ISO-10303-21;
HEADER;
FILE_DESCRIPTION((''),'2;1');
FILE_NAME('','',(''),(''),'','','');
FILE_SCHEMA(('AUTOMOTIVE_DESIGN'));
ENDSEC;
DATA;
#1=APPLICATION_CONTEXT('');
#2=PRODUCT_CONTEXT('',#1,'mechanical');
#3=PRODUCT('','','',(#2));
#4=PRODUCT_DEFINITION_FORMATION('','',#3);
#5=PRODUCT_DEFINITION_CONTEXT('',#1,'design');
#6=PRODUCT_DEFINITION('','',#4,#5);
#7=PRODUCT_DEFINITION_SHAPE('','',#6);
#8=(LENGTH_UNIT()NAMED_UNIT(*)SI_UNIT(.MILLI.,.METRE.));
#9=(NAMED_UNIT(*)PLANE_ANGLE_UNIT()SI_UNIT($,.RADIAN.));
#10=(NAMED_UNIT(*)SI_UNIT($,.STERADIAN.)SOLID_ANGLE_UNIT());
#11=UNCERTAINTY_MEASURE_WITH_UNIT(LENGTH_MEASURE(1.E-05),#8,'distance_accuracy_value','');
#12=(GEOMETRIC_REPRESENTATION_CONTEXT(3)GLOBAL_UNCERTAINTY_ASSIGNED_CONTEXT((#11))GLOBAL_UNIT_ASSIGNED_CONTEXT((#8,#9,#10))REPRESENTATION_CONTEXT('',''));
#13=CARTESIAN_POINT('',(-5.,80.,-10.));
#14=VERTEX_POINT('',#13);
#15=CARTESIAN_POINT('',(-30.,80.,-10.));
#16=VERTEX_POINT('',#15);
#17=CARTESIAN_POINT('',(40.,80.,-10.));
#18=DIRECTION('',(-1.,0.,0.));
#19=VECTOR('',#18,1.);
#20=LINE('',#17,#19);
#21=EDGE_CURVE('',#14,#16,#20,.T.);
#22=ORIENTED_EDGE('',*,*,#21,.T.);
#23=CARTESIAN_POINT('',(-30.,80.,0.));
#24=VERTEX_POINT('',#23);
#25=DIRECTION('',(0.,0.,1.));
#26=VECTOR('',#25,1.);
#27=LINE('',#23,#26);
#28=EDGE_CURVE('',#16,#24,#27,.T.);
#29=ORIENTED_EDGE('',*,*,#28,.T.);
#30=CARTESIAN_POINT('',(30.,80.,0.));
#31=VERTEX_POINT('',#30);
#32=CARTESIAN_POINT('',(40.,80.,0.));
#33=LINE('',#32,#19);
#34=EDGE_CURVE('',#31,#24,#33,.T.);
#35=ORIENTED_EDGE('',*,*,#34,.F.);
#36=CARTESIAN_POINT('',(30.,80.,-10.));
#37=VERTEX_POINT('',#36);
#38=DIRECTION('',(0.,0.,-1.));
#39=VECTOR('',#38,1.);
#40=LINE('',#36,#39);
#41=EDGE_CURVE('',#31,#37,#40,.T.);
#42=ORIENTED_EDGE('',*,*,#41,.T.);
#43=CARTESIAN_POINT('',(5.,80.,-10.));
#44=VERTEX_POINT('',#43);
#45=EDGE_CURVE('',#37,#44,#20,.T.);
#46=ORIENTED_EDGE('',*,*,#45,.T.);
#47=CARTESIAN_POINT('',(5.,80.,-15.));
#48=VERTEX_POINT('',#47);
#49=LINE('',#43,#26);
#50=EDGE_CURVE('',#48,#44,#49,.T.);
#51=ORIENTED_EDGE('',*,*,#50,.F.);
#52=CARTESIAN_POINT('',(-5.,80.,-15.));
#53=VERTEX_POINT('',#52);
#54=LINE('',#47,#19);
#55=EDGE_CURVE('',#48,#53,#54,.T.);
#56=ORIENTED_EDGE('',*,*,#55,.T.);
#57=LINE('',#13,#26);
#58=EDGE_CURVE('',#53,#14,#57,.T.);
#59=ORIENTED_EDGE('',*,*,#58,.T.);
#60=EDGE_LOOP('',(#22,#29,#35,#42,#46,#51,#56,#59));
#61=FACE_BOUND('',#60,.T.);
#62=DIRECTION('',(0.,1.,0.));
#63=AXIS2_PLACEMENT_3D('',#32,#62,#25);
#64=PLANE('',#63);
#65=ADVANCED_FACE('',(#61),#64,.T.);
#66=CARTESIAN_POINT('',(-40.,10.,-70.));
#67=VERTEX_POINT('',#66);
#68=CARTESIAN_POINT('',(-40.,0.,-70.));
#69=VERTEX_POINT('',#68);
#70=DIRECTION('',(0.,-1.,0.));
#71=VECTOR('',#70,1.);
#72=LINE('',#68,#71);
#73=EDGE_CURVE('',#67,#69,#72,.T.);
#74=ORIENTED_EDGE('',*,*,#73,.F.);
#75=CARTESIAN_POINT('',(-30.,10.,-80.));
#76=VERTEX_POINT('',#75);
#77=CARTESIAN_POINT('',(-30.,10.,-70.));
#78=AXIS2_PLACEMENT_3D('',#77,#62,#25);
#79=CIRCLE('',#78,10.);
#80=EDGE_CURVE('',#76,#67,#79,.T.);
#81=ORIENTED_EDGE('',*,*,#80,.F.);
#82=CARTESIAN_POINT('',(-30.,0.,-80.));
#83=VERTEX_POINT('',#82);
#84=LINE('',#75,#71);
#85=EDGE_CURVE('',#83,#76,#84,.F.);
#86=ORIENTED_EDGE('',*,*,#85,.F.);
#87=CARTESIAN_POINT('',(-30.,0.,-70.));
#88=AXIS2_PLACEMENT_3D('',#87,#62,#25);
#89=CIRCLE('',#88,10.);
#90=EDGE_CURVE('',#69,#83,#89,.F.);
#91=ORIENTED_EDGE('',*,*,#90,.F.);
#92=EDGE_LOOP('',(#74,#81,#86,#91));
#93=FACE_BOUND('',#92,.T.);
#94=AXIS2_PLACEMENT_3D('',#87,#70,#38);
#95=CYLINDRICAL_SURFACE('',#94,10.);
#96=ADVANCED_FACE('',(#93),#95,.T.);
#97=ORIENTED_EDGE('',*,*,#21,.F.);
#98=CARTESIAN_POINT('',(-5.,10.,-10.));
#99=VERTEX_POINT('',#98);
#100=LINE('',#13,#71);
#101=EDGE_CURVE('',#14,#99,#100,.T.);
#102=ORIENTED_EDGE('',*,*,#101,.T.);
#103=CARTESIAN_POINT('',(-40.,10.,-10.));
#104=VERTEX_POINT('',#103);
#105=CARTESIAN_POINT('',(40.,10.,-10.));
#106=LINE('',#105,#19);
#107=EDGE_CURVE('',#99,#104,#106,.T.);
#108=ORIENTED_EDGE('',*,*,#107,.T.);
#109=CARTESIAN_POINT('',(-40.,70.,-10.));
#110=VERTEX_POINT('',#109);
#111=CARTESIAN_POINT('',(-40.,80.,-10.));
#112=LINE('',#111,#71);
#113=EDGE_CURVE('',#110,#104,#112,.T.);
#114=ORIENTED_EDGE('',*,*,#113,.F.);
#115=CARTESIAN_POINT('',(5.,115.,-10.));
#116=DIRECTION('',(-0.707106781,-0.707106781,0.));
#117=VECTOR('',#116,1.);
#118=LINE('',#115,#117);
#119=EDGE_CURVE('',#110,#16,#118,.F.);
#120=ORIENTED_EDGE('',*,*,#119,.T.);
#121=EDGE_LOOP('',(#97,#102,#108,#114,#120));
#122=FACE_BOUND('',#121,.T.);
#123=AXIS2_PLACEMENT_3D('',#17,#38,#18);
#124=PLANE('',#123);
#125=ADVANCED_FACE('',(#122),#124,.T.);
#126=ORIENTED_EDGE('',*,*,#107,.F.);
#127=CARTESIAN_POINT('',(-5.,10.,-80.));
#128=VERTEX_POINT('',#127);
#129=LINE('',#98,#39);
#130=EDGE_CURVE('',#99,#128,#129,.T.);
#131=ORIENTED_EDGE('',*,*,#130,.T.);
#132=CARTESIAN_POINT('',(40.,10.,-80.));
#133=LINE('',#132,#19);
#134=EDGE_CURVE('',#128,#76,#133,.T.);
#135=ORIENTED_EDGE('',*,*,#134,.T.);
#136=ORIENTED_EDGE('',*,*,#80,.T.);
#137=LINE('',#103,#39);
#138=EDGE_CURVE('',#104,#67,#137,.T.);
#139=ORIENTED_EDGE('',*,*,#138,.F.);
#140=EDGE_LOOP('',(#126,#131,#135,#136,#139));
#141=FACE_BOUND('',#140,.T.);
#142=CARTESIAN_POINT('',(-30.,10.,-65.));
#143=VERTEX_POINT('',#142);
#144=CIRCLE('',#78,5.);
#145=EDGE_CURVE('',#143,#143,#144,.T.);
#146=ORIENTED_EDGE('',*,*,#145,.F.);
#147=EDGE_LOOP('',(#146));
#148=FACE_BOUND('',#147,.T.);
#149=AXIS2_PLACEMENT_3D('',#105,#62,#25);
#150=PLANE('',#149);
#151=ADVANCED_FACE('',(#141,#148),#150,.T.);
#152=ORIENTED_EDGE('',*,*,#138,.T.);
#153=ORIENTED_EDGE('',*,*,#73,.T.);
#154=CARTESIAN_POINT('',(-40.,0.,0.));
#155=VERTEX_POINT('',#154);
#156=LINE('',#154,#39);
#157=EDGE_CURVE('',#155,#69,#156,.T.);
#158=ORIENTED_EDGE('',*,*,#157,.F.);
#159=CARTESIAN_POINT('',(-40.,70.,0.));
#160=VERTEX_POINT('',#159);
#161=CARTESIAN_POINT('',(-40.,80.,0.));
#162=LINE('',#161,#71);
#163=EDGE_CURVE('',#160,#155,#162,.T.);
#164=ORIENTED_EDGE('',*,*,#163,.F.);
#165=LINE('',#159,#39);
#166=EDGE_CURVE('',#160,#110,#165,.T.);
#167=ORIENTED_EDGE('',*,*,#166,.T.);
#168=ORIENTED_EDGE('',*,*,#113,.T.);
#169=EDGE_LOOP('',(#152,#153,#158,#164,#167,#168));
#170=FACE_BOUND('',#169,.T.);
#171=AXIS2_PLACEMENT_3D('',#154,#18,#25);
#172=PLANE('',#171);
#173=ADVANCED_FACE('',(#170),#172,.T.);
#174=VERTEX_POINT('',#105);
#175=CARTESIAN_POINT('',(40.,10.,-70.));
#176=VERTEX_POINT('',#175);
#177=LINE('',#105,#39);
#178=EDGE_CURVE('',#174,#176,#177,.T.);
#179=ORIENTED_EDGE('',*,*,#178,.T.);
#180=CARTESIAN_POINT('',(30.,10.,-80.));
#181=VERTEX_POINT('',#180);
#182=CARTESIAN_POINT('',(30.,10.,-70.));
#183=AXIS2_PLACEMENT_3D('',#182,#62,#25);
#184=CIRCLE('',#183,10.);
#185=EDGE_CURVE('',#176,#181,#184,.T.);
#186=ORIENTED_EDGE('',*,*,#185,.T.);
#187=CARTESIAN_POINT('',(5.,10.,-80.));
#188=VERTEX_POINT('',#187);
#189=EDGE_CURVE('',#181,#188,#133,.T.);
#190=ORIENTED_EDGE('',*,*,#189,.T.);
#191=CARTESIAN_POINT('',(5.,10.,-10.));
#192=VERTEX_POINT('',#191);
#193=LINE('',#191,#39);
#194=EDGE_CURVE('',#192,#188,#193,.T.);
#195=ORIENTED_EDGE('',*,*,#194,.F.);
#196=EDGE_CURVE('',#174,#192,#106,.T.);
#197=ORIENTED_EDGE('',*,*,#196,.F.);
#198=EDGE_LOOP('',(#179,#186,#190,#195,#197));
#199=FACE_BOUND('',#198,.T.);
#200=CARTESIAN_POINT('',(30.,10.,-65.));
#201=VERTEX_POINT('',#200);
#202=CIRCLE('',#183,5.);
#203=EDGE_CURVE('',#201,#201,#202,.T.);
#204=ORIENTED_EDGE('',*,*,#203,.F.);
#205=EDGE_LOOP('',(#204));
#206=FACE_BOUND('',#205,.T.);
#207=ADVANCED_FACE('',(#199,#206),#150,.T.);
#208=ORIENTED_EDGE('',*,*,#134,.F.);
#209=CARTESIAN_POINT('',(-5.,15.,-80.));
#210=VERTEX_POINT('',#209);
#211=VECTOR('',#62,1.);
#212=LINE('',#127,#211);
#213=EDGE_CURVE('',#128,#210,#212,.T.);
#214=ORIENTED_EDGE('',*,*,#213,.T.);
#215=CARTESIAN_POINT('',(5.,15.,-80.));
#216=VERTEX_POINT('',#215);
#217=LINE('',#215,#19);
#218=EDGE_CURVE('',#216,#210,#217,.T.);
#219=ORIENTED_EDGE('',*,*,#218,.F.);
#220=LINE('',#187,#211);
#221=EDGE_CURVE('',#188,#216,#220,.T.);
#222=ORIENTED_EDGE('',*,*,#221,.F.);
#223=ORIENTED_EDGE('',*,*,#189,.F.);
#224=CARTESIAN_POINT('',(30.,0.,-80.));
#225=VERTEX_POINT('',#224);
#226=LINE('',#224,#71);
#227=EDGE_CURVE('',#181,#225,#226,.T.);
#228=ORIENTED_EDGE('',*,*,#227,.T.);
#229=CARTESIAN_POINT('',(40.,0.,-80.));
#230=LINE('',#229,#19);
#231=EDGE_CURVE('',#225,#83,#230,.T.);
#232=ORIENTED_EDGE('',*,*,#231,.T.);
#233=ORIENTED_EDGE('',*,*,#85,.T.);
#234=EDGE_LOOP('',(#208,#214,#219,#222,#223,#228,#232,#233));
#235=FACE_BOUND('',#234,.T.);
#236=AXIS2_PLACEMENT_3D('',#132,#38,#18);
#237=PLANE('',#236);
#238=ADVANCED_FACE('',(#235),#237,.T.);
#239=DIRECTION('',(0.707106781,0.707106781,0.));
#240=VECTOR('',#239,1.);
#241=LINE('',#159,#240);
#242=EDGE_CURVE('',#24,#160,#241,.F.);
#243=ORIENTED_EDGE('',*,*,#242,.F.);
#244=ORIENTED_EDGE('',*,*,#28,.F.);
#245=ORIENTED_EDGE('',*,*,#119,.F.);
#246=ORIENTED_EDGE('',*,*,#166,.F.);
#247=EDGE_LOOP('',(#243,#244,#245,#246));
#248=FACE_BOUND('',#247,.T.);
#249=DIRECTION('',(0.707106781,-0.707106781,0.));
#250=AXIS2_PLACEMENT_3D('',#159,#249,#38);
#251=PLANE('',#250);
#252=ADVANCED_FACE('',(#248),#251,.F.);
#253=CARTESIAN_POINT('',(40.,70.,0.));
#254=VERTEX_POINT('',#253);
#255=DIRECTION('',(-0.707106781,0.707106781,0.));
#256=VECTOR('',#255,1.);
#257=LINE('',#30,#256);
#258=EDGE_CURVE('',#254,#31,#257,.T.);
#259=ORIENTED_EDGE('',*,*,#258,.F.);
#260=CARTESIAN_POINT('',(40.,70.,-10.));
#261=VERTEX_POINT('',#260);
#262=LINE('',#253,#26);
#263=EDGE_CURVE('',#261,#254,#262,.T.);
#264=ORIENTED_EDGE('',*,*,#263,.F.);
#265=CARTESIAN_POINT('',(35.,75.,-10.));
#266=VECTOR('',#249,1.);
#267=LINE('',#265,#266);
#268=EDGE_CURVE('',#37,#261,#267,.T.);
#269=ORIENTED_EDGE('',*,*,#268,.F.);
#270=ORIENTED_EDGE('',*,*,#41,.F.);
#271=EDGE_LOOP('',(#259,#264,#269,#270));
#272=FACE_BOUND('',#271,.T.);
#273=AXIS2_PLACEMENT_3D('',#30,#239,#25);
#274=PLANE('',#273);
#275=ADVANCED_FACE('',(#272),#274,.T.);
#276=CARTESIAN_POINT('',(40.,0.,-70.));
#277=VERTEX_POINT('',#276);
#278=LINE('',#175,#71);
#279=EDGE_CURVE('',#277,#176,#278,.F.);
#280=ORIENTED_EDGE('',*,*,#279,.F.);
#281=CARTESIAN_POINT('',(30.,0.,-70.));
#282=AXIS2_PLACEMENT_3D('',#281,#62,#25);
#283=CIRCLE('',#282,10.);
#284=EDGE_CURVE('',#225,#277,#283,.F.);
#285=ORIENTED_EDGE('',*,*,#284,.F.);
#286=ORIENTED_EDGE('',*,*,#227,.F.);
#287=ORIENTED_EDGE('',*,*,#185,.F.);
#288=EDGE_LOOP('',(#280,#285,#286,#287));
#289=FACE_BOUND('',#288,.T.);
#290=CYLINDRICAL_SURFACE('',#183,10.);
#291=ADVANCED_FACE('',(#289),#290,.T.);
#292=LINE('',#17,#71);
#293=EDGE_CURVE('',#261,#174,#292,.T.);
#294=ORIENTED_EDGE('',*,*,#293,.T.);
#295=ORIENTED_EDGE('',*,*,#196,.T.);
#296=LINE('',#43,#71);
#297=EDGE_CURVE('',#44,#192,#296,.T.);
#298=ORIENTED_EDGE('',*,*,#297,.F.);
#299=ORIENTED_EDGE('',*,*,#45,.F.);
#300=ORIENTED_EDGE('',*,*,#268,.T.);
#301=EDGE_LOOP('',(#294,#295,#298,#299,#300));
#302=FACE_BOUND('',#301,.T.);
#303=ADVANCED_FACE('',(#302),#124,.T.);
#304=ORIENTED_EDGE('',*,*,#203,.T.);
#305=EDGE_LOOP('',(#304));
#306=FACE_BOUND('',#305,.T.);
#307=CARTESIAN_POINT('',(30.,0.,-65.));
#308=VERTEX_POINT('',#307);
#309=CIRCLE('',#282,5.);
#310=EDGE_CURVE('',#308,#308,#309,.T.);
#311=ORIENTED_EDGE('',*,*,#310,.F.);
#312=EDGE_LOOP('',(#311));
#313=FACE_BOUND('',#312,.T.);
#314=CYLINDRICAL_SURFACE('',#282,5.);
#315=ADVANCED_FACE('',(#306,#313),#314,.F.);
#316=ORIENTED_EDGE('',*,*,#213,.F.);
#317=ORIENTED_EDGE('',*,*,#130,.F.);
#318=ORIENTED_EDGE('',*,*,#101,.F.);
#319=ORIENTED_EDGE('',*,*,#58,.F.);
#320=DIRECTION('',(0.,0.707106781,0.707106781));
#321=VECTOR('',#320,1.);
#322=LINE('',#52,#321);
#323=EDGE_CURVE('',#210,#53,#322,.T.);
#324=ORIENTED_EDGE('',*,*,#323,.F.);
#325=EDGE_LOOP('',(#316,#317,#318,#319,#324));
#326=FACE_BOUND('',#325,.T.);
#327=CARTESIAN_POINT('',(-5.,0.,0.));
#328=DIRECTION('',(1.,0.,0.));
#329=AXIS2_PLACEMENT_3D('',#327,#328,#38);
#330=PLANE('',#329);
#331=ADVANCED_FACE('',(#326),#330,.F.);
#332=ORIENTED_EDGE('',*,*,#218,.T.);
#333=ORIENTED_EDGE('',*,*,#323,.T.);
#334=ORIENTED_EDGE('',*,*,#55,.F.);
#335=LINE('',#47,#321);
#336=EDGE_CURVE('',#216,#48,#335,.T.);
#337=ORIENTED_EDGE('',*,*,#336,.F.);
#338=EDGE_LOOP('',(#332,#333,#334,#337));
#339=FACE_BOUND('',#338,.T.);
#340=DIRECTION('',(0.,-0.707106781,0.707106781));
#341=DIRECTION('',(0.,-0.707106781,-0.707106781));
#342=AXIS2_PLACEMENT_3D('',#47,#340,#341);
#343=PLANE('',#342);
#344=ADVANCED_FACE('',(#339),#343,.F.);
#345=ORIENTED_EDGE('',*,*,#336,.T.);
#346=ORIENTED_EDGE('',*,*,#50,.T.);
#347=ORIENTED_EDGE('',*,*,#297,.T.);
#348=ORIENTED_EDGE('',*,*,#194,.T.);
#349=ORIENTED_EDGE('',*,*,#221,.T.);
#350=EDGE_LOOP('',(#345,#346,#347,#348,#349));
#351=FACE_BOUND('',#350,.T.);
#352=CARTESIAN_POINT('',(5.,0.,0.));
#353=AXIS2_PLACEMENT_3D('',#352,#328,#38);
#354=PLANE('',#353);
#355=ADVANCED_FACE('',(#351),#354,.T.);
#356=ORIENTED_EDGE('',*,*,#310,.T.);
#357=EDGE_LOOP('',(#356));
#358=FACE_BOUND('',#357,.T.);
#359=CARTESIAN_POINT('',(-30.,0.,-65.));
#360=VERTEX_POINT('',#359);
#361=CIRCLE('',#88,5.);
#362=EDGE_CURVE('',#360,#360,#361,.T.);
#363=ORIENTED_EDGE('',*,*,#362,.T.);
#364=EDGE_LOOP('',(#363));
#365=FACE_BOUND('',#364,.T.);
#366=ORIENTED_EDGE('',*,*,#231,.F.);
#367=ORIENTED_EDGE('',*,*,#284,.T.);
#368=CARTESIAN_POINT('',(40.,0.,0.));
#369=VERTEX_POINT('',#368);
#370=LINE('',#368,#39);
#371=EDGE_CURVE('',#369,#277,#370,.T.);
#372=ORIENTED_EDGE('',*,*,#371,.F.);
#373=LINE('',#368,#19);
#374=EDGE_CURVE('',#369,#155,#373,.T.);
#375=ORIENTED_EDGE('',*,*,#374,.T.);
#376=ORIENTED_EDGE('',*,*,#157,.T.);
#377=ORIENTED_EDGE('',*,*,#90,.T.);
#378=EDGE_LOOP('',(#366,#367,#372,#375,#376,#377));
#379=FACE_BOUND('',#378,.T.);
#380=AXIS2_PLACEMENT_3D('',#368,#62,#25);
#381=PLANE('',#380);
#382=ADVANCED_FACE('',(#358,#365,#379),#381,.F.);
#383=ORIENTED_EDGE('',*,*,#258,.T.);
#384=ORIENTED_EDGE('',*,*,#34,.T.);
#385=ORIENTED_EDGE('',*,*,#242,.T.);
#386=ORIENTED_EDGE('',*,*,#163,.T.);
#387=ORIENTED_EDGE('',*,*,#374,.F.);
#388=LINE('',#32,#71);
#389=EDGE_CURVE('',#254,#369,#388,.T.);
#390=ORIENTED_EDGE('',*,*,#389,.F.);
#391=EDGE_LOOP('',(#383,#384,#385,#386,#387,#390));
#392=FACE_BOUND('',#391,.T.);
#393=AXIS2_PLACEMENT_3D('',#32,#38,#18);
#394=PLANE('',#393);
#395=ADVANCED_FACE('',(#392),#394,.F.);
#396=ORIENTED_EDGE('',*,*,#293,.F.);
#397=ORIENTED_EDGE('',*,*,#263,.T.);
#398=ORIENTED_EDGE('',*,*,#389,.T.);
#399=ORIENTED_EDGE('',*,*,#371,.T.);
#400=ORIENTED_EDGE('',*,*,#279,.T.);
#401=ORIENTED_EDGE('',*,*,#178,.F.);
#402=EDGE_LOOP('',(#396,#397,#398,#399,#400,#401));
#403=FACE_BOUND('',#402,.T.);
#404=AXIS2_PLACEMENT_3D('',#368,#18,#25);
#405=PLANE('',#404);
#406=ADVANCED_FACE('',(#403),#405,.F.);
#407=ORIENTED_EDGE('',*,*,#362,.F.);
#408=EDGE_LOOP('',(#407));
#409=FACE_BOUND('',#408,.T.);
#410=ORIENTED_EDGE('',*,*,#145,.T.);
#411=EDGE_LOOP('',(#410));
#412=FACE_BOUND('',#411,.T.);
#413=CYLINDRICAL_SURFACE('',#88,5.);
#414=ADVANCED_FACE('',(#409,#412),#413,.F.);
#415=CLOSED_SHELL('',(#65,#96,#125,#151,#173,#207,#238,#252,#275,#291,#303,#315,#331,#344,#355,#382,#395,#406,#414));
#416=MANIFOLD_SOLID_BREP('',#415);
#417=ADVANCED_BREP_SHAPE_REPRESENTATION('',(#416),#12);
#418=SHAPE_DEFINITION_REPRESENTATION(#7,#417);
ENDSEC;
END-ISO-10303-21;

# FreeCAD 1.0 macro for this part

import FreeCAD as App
import Part
import Sketcher

V = App.Vector
Q = App.Units.Quantity


def edges_at(feature, points):
    """Names of the edges that pass closest to the given points."""
    edges = feature.Shape.Edges
    near = lambda p: min(range(len(edges)), key=lambda i: edges[i].distToShape(Part.Vertex(*p))[0])
    return sorted({f"Edge{near(p) + 1}" for p in points})


def add_polygon(sketch, points):
    """Adds a closed chain of lines whose ends are joined by coincident constraints."""
    first, n = sketch.GeometryCount, len(points)
    for a, b in zip(points, points[1:] + points[:1]):
        sketch.addGeometry(Part.LineSegment(App.Vector(*a, 0), App.Vector(*b, 0)), False)
    for i in range(n):
        sketch.addConstraint(Sketcher.Constraint("Coincident", first + i, 2, first + (i + 1) % n, 1))

doc = App.newDocument("Part")
params = doc.addObject("Spreadsheet::Sheet", "Params")
for row, (alias, value) in enumerate([
    ("sketch1_width", "10 mm"),
    ("sketch1_width2", "70 mm"),
    ("pad1_length", "80 mm"),
    ("sketch2_width", "5 mm"),
    ("sketch2_width2", "70 mm"),
    ("pad2_length", "10 mm"),
    ("fillet_radius", "10 mm"),
    ("sketch3_diameter", "10 mm"),
    ("chamfer_size", "10 mm"),
], start=1):
    params.set(f"A{row}", alias)
    params.set(f"B{row}", "=" + value)
    params.setAlias(f"B{row}", alias)

body = doc.addObject("PartDesign::Body", "Body")

sketch1 = body.newObject("Sketcher::SketchObject", "Sketch")
sketch1.AttachmentSupport = (doc.getObject("YZ_Plane"), [""])
sketch1.MapMode = "FlatFace"
add_polygon(sketch1, [(0, 0), (0, -80), (10, -80), (10, -10), (80, -10), (80, 0)])
sketch1.addConstraint([
    Sketcher.Constraint("Vertical", 0),
    Sketcher.Constraint("Horizontal", 1),
    Sketcher.Constraint("Vertical", 2),
    Sketcher.Constraint("Horizontal", 3),
    Sketcher.Constraint("Vertical", 4),
    Sketcher.Constraint("Horizontal", 5),
    Sketcher.Constraint("Coincident", 5, 2, -1, 1),
    Sketcher.Constraint("Equal", 5, 0),
    Sketcher.Constraint("Equal", 3, 2),
    Sketcher.Constraint("DistanceX", 1, 1, 1, 2, Q("10 mm")),
    Sketcher.Constraint("DistanceX", 3, 1, 3, 2, Q("70 mm")),
])
sketch1.setExpression("Constraints[15]", "Params.sketch1_width")
sketch1.setExpression("Constraints[16]", "Params.sketch1_width2")
pad1 = body.newObject("PartDesign::Pad", "Pad")
pad1.Profile = sketch1
pad1.setExpression("Length", "Params.pad1_length")
pad1.Midplane = True

sketch2 = body.newObject("Sketcher::SketchObject", "Sketch001")
sketch2.AttachmentSupport = (doc.getObject("YZ_Plane"), [""])
sketch2.MapMode = "FlatFace"
add_polygon(sketch2, [(10, -10), (10, -80), (15, -80), (80, -15), (80, -10)])
sketch2.addConstraint([
    Sketcher.Constraint("Vertical", 0),
    Sketcher.Constraint("Horizontal", 1),
    Sketcher.Constraint("Vertical", 3),
    Sketcher.Constraint("Horizontal", 4),
    Sketcher.Constraint("Equal", 4, 0),
    Sketcher.Constraint("Equal", 1, 3),
    Sketcher.Constraint("DistanceX", 1, 1, 1, 2, Q("5 mm")),
    Sketcher.Constraint("DistanceX", 4, 2, 4, 1, Q("70 mm")),
    Sketcher.Constraint("DistanceX", -1, 1, 0, 2, Q("10 mm")),
    Sketcher.Constraint("DistanceY", 0, 2, -1, 1, Q("80 mm")),
])
sketch2.setExpression("Constraints[11]", "Params.sketch2_width")
sketch2.setExpression("Constraints[12]", "Params.sketch2_width2")
pad2 = body.newObject("PartDesign::Pad", "Pad001")
pad2.Profile = sketch2
pad2.setExpression("Length", "Params.pad2_length")
pad2.Midplane = True
doc.recompute()

fillet = body.newObject("PartDesign::Fillet", "Fillet")
fillet.Base = (pad2, edges_at(pad2, [(40, 5, -80), (-40, 5, -80)]))
fillet.setExpression("Radius", "Params.fillet_radius")

sketch3 = body.newObject("Sketcher::SketchObject", "Sketch002")
sketch3.AttachmentSupport = (doc.getObject("XZ_Plane"), [""])
sketch3.MapMode = "FlatFace"
sketch3.AttachmentOffset = App.Placement(V(0, 0, -10), App.Rotation())
sketch3.addGeometry([
    Part.Circle(V(30, -70, 0), V(0, 0, 1), 5),
    Part.Circle(V(-30, -70, 0), V(0, 0, 1), 5),
], False)
sketch3.addConstraint([
    Sketcher.Constraint("Equal", 0, 1),
    Sketcher.Constraint("Symmetric", 0, 3, 1, 3, -2),
    Sketcher.Constraint("Diameter", 0, Q("10 mm")),
    Sketcher.Constraint("DistanceX", -1, 1, 0, 3, Q("30 mm")),
    Sketcher.Constraint("DistanceY", 0, 3, -1, 1, Q("70 mm")),
])
sketch3.setExpression("Constraints[2]", "Params.sketch3_diameter")
pocket1 = body.newObject("PartDesign::Pocket", "Pocket")
pocket1.Profile = sketch3
pocket1.Type = "ThroughAll"
pocket1.Reversed = True
doc.recompute()

chamfer = body.newObject("PartDesign::Chamfer", "Chamfer")
chamfer.Base = (pocket1, edges_at(pocket1, [(40, 80, -5), (-40, 80, -5)]))
chamfer.setExpression("Size", "Params.chamfer_size")

doc.recompute()
